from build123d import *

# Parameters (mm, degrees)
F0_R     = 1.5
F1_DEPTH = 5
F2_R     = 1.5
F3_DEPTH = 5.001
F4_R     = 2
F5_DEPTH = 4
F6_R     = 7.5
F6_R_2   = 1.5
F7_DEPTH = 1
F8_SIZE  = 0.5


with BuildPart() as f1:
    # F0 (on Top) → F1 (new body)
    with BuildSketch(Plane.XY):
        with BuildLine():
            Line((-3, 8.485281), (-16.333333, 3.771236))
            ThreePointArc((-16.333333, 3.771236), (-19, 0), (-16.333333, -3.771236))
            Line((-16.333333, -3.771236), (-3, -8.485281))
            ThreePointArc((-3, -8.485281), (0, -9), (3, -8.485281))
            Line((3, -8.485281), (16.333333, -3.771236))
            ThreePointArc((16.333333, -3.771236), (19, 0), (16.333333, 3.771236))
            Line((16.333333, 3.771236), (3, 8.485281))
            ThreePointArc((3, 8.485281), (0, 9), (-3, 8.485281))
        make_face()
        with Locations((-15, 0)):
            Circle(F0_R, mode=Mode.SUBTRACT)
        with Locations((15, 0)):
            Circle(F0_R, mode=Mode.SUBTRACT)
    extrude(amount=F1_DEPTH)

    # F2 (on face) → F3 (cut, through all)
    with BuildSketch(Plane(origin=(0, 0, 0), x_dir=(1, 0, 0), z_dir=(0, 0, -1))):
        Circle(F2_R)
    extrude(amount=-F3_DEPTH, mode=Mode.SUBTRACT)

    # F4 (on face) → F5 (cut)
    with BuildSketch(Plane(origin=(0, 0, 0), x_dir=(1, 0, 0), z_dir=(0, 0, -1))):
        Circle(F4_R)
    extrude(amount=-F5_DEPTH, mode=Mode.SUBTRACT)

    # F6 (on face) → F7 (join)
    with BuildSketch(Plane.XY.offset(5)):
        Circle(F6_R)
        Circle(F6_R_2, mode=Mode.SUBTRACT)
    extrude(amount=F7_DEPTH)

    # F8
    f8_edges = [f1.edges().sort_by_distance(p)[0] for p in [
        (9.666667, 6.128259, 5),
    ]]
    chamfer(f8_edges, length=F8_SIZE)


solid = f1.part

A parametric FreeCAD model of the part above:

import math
import FreeCAD as App
import Part
import Sketcher
Q = App.Units.Quantity


def edges_at(feature, points):
    """Names of the edges that pass closest to the given points."""
    edges = feature.Shape.Edges
    near = lambda p: min(range(len(edges)), key=lambda i: edges[i].distToShape(Part.Vertex(*p))[0])
    return sorted({f"Edge{near(p) + 1}" for p in points})

doc = App.newDocument("Part")
body = doc.addObject("PartDesign::Body", "Body")

# Sketch on XY plane
sketch1 = doc.addObject("Sketcher::SketchObject", "Sketch")
body.addObject(sketch1)
sketch1.AttachmentSupport = (doc.XY_Plane, [""])
sketch1.MapMode = "FlatFace"
sketch1.addGeometry([
    Part.LineSegment(App.Vector(-3, 8.485281, 0), App.Vector(-16.333333, 3.771236, 0)),  # 0
    Part.ArcOfCircle(Part.Circle(App.Vector(-15, 0, 0), App.Vector(0, 0, 1), 4), math.radians(109.471211), math.radians(250.528789)),  # 1
    Part.LineSegment(App.Vector(-16.333333, -3.771236, 0), App.Vector(-3, -8.485281, 0)),  # 2
    Part.ArcOfCircle(Part.Circle(App.Vector(0, -0.000006, 0), App.Vector(0, 0, 1), 8.999994), math.radians(-109.471235), math.radians(-70.528765)),  # 3
    Part.LineSegment(App.Vector(3, -8.485281, 0), App.Vector(16.333333, -3.771236, 0)),  # 4
    Part.ArcOfCircle(Part.Circle(App.Vector(15, 0, 0), App.Vector(0, 0, 1), 4), math.radians(-70.528789), math.radians(70.528789)),  # 5
    Part.LineSegment(App.Vector(16.333333, 3.771236, 0), App.Vector(3, 8.485281, 0)),  # 6
    Part.ArcOfCircle(Part.Circle(App.Vector(0, 0.000006, 0), App.Vector(0, 0, 1), 8.999994), math.radians(70.528765), math.radians(109.471235)),  # 7
    Part.Circle(App.Vector(-15, 0, 0), App.Vector(0, 0, 1), 1.5),  # 8
    Part.Circle(App.Vector(15, 0, 0), App.Vector(0, 0, 1), 1.5),  # 9
], False)
sketch1.addConstraint([
    Sketcher.Constraint("Tangent", 0, 2, 1, 1),
    Sketcher.Constraint("Tangent", 1, 2, 2, 1),
    Sketcher.Constraint("Tangent", 2, 2, 3, 1),
    Sketcher.Constraint("Tangent", 3, 2, 4, 1),
    Sketcher.Constraint("Tangent", 4, 2, 5, 1),
    Sketcher.Constraint("Tangent", 5, 2, 6, 1),
    Sketcher.Constraint("Tangent", 6, 2, 7, 1),
    Sketcher.Constraint("Tangent", 7, 2, 0, 1),
    Sketcher.Constraint("Coincident", 3, 3, -1, 1),
    Sketcher.Constraint("Coincident", 7, 3, -1, 1),
    Sketcher.Constraint("Coincident", 8, 3, 1, 3),
    Sketcher.Constraint("Coincident", 9, 3, 5, 3),
    Sketcher.Constraint("Equal", 1, 5),
    Sketcher.Constraint("Equal", 3, 7),
    Sketcher.Constraint("Equal", 8, 9),
    Sketcher.Constraint("Symmetric", 1, 3, 5, 3, -1, 1),
    Sketcher.Constraint("PointOnObject", 1, 3, -1),
    Sketcher.Constraint("Diameter", 8, Q("3 mm")),
    Sketcher.Constraint("Radius", 1, Q("4 mm")),
    Sketcher.Constraint("DistanceX", 1, 3, -1, 1, Q("15 mm")),
    Sketcher.Constraint("DistanceX", 2, 2, -1, 1, Q("3 mm")),
])
pad1 = doc.addObject("PartDesign::Pad", "Pad")
body.addObject(pad1)
pad1.Profile = sketch1
pad1.Length = 5

# Sketch on XY plane
sketch2 = doc.addObject("Sketcher::SketchObject", "Sketch001")
body.addObject(sketch2)
sketch2.AttachmentSupport = (doc.XY_Plane, [""])
sketch2.MapMode = "FlatFace"
sketch2.addGeometry(Part.Circle(App.Vector(0, 0, 0), App.Vector(0, 0, 1), 1.5), False)
sketch2.addConstraint([
    Sketcher.Constraint("Coincident", 0, 3, -1, 1),
    Sketcher.Constraint("Diameter", 0, Q("3 mm")),
])
pocket1 = doc.addObject("PartDesign::Pocket", "Pocket")
body.addObject(pocket1)
pocket1.Profile = sketch2
pocket1.Type = "ThroughAll"
pocket1.Reversed = True

# Sketch on XY plane
sketch3 = doc.addObject("Sketcher::SketchObject", "Sketch002")
body.addObject(sketch3)
sketch3.AttachmentSupport = (doc.XY_Plane, [""])
sketch3.MapMode = "FlatFace"
sketch3.addGeometry(Part.Circle(App.Vector(0, 0, 0), App.Vector(0, 0, 1), 2), False)
sketch3.addConstraint([
    Sketcher.Constraint("Coincident", 0, 3, -1, 1),
    Sketcher.Constraint("Diameter", 0, Q("4 mm")),
])
pocket2 = doc.addObject("PartDesign::Pocket", "Pocket001")
body.addObject(pocket2)
pocket2.Profile = sketch3
pocket2.Length = 4
pocket2.Reversed = True

# Sketch on XY plane
sketch4 = doc.addObject("Sketcher::SketchObject", "Sketch003")
body.addObject(sketch4)
sketch4.AttachmentSupport = (doc.XY_Plane, [""])
sketch4.MapMode = "FlatFace"
sketch4.AttachmentOffset = App.Placement(App.Vector(0, 0, 5), App.Rotation())
sketch4.addGeometry([
    Part.Circle(App.Vector(0, 0, 0), App.Vector(0, 0, 1), 7.5),
    Part.Circle(App.Vector(0, 0, 0), App.Vector(0, 0, 1), 1.5),
], False)
sketch4.addConstraint([
    Sketcher.Constraint("Coincident", 0, 3, -1, 1),
    Sketcher.Constraint("Coincident", 1, 3, -1, 1),
    Sketcher.Constraint("Diameter", 0, Q("15 mm")),
    Sketcher.Constraint("Diameter", 1, Q("3 mm")),
])
pad2 = doc.addObject("PartDesign::Pad", "Pad001")
body.addObject(pad2)
pad2.Profile = sketch4
pad2.Length = 1
doc.recompute()

chamfer = doc.addObject("PartDesign::Chamfer", "Chamfer")
body.addObject(chamfer)
chamfer.Base = (pad2, edges_at(pad2, [(9.667, 6.128, 5)]))
chamfer.Size = 0.5

doc.recompute()
